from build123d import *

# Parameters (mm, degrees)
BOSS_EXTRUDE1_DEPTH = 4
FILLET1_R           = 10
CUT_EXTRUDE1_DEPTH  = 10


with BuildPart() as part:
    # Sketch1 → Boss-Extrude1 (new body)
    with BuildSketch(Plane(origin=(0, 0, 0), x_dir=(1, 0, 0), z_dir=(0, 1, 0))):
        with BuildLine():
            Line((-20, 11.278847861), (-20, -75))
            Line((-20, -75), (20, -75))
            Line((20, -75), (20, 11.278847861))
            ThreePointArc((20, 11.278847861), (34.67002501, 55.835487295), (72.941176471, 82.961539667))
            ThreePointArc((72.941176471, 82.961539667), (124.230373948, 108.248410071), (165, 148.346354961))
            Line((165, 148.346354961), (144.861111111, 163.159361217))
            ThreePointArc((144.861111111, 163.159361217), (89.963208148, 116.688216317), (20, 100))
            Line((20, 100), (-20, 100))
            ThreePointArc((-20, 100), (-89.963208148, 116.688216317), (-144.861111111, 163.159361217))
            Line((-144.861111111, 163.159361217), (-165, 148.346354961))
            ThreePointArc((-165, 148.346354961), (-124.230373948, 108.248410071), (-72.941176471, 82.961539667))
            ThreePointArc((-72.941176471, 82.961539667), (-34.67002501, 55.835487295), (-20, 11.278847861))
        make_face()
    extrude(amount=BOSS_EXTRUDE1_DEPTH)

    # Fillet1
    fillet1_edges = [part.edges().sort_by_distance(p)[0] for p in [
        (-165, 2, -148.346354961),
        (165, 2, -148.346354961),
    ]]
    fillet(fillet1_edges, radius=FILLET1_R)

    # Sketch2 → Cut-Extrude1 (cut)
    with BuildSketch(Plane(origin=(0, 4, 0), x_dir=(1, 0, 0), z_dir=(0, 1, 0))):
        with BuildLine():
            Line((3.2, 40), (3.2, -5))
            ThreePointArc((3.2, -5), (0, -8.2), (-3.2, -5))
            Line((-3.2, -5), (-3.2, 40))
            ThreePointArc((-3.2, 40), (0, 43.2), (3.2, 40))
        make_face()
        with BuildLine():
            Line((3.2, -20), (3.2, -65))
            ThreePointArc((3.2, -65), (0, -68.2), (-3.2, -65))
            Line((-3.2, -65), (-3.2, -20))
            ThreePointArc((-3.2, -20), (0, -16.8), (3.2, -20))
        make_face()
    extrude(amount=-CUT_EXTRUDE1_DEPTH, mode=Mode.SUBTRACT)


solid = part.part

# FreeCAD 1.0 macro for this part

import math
import FreeCAD as App
import Part
import Sketcher

V = App.Vector
Q = App.Units.Quantity


def edges_at(feature, points):
    """Names of the edges that pass closest to the given points."""
    edges = feature.Shape.Edges
    near = lambda p: min(range(len(edges)), key=lambda i: edges[i].distToShape(Part.Vertex(*p))[0])
    return sorted({f"Edge{near(p) + 1}" for p in points})

doc = App.newDocument("Part")
body = doc.addObject("PartDesign::Body", "Body")

# Sketch on XZ plane
sketch1 = body.newObject("Sketcher::SketchObject", "Sketch")
sketch1.AttachmentSupport = (doc.getObject("XZ_Plane"), [""])
sketch1.MapMode = "FlatFace"
sketch1.addGeometry([
    Part.LineSegment(V(-20, -11.278848, 0), V(-20, 75, 0)),  # 0
    Part.LineSegment(V(-20, 75, 0), V(20, 75, 0)),  # 1
    Part.LineSegment(V(20, 75, 0), V(20, -11.278848, 0)),  # 2
    Part.ArcOfCircle(Part.Circle(V(95, -11.278848, 0), V(0, 0, 1), 75), math.radians(-180), math.radians(-107.104635)),  # 3
    Part.ArcOfCircle(Part.Circle(V(20, -255, 0), V(0, 0, 1), 180), math.radians(36.336058), math.radians(72.895365)),  # 4
    Part.LineSegment(V(165, -148.346355, 0), V(144.861111, -163.159361, 0)),  # 5
    Part.ArcOfCircle(Part.Circle(V(20, -255, 0), V(0, 0, 1), 155), math.radians(36.336058), math.radians(90)),  # 6
    Part.LineSegment(V(20, -100, 0), V(-20, -100, 0)),  # 7
    Part.ArcOfCircle(Part.Circle(V(-20, -255, 0), V(0, 0, 1), 155), math.radians(90), math.radians(143.663942)),  # 8
    Part.LineSegment(V(-144.861111, -163.159361, 0), V(-165, -148.346355, 0)),  # 9
    Part.ArcOfCircle(Part.Circle(V(-20, -255, 0), V(0, 0, 1), 180), math.radians(107.104635), math.radians(143.663942)),  # 10
    Part.ArcOfCircle(Part.Circle(V(-95, -11.278848, 0), V(0, 0, 1), 75), math.radians(-72.895365), math.radians(0)),  # 11
], False)
sketch1.addConstraint([
    Sketcher.Constraint("Coincident", 0, 2, 1, 1),
    Sketcher.Constraint("Coincident", 1, 2, 2, 1),
    Sketcher.Constraint("Tangent", 2, 2, 3, 1),
    Sketcher.Constraint("Tangent", 3, 2, 4, 2),
    Sketcher.Constraint("Coincident", 4, 1, 5, 1),
    Sketcher.Constraint("Coincident", 5, 2, 6, 1),
    Sketcher.Constraint("Tangent", 6, 2, 7, 1),
    Sketcher.Constraint("Tangent", 7, 2, 8, 1),
    Sketcher.Constraint("Coincident", 8, 2, 9, 1),
    Sketcher.Constraint("Coincident", 9, 2, 10, 2),
    Sketcher.Constraint("Tangent", 10, 1, 11, 1),
    Sketcher.Constraint("Tangent", 11, 2, 0, 1),
    Sketcher.Constraint("Vertical", 0),
    Sketcher.Constraint("Horizontal", 1),
    Sketcher.Constraint("Vertical", 2),
    Sketcher.Constraint("Horizontal", 7),
    Sketcher.Constraint("Coincident", 6, 3, 4, 3),
    Sketcher.Constraint("Coincident", 10, 3, 8, 3),
    Sketcher.Constraint("Equal", 6, 8),
    Sketcher.Constraint("Equal", 4, 10),
    Sketcher.Constraint("Equal", 3, 11),
    Sketcher.Constraint("Symmetric", 3, 3, 11, 3, -2),
    Sketcher.Constraint("Horizontal", 5, 2, 8, 2),
    Sketcher.Constraint("Horizontal", 4, 1, 9, 2),
    Sketcher.Constraint("Vertical", 10, 3, 0, 2),
    Sketcher.Constraint("Radius", 3, Q("75 mm")),
    Sketcher.Constraint("Radius", 4, Q("180 mm")),
    Sketcher.Constraint("Radius", 6, Q("155 mm")),
    Sketcher.Constraint("DistanceX", 1, 1, 1, 2, Q("40 mm")),
    Sketcher.Constraint("DistanceY", 4, 3, -1, 1, Q("255 mm")),
    Sketcher.Constraint("DistanceY", -1, 1, 0, 2, Q("75 mm")),
    Sketcher.Constraint("DistanceX", -1, 1, 4, 1, Q("165 mm")),
    Sketcher.Constraint("DistanceX", -1, 1, 5, 2, Q("144.861111 mm")),
])
pad1 = body.newObject("PartDesign::Pad", "Pad")
pad1.Profile = sketch1
pad1.Length = 4
pad1.Reversed = True
doc.recompute()

fillet = body.newObject("PartDesign::Fillet", "Fillet")
fillet.Base = (pad1, edges_at(pad1, [(-165, 2, -148.346), (165, 2, -148.346)]))
fillet.Radius = 10

# Sketch on XZ plane
sketch2 = body.newObject("Sketcher::SketchObject", "Sketch001")
sketch2.AttachmentSupport = (doc.getObject("XZ_Plane"), [""])
sketch2.MapMode = "FlatFace"
sketch2.AttachmentOffset = App.Placement(V(0, 0, -4), App.Rotation())
sketch2.addGeometry([
    Part.LineSegment(V(3.2, 5, 0), V(3.2, -40, 0)),  # 0
    Part.ArcOfCircle(Part.Circle(V(0, -40, 0), V(0, 0, 1), 3.2), math.radians(180), math.radians(360)),  # 1
    Part.LineSegment(V(-3.2, -40, 0), V(-3.2, 5, 0)),  # 2
    Part.ArcOfCircle(Part.Circle(V(0, 5, 0), V(0, 0, 1), 3.2), math.radians(0), math.radians(180)),  # 3
    Part.LineSegment(V(3.2, 65, 0), V(3.2, 20, 0)),  # 4
    Part.ArcOfCircle(Part.Circle(V(0, 20, 0), V(0, 0, 1), 3.2), math.radians(180), math.radians(360)),  # 5
    Part.LineSegment(V(-3.2, 20, 0), V(-3.2, 65, 0)),  # 6
    Part.ArcOfCircle(Part.Circle(V(0, 65, 0), V(0, 0, 1), 3.2), math.radians(0), math.radians(180)),  # 7
], False)
sketch2.addConstraint([
    Sketcher.Constraint("Tangent", 0, 2, 1, 2),
    Sketcher.Constraint("Tangent", 1, 1, 2, 1),
    Sketcher.Constraint("Tangent", 2, 2, 3, 2),
    Sketcher.Constraint("Tangent", 3, 1, 0, 1),
    Sketcher.Constraint("Tangent", 4, 2, 5, 2),
    Sketcher.Constraint("Tangent", 5, 1, 6, 1),
    Sketcher.Constraint("Tangent", 6, 2, 7, 2),
    Sketcher.Constraint("Tangent", 7, 1, 4, 1),
    Sketcher.Constraint("Vertical", 0),
    Sketcher.Constraint("Vertical", 2),
    Sketcher.Constraint("Vertical", 4),
    Sketcher.Constraint("Vertical", 6),
    Sketcher.Constraint("Equal", 3, 5),
    Sketcher.Constraint("PointOnObject", 1, 3, -2),
    Sketcher.Constraint("PointOnObject", 5, 3, -2),
    Sketcher.Constraint("Equal", 2, 4),
    Sketcher.Constraint("Radius", 1, Q("3.2 mm")),
    Sketcher.Constraint("DistanceY", 0, 2, 0, 1, Q("45 mm")),
    Sketcher.Constraint("DistanceY", 1, 3, -1, 1, Q("40 mm")),
    Sketcher.Constraint("DistanceY", -1, 1, 5, 3, Q("20 mm")),
])
pocket1 = body.newObject("PartDesign::Pocket", "Pocket")
pocket1.Profile = sketch2
pocket1.Length = 10
pocket1.Reversed = True

doc.recompute()
